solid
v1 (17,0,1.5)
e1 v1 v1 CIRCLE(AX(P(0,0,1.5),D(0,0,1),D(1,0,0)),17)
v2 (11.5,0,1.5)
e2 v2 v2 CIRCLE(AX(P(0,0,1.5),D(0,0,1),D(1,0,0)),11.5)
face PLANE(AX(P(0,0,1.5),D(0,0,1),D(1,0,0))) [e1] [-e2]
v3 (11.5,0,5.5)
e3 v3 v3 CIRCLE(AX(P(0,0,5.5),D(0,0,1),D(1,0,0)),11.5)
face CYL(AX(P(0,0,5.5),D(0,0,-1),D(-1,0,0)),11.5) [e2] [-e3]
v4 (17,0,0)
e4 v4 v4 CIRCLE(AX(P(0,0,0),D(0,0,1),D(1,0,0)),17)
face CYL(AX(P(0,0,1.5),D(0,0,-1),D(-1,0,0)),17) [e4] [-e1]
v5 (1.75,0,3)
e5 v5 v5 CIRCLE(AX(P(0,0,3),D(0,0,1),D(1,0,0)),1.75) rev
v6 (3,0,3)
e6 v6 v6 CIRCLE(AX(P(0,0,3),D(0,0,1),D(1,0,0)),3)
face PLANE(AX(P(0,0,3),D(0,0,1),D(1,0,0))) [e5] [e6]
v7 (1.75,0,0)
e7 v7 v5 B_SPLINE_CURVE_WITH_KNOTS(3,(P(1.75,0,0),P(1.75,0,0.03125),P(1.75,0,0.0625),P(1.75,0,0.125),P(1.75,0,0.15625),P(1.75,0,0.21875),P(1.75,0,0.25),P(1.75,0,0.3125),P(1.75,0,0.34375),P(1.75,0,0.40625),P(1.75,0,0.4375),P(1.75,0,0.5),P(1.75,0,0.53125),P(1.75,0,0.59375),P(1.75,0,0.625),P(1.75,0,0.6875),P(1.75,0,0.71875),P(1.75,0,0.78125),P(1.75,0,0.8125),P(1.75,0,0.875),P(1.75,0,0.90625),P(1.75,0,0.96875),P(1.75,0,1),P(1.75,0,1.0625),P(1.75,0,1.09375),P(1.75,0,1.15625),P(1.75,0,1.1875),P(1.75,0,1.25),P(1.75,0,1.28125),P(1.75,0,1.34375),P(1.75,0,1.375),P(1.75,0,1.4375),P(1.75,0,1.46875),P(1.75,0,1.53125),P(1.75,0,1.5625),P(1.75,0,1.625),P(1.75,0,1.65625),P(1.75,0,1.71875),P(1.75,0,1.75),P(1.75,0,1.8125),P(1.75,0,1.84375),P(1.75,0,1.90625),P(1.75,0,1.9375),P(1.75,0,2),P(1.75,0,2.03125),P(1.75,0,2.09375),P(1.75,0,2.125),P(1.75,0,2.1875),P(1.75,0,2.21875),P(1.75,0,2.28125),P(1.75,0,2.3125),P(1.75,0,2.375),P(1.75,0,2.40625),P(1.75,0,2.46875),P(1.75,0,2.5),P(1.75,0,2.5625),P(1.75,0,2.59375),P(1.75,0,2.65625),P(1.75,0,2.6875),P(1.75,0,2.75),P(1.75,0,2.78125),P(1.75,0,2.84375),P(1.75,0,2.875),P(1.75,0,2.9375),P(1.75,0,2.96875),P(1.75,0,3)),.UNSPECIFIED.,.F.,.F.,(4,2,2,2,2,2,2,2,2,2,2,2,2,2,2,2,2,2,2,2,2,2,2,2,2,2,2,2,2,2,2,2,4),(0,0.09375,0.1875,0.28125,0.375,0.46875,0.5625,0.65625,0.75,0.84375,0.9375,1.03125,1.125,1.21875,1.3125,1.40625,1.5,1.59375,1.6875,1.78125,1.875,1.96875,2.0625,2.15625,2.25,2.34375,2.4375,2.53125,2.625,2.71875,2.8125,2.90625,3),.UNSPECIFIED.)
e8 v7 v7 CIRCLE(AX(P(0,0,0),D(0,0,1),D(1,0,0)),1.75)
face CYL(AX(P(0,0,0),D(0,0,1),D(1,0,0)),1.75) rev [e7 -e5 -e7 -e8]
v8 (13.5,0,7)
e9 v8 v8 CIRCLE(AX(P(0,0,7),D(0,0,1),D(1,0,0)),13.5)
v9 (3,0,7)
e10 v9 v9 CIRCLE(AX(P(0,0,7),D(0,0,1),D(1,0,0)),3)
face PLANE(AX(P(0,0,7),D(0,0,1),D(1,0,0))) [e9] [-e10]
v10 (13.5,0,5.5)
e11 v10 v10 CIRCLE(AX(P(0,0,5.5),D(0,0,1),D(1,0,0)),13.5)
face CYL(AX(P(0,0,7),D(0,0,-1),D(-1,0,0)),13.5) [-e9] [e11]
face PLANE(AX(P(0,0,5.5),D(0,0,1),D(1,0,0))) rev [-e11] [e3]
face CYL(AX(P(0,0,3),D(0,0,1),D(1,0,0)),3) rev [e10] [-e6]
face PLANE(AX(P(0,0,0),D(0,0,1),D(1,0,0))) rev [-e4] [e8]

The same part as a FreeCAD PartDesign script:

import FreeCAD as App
import Part
import Sketcher

doc = App.newDocument("Part")
body = doc.addObject("PartDesign::Body", "Body")

# Sketch on XY plane
sketch1 = doc.addObject("Sketcher::SketchObject", "Sketch")
body.addObject(sketch1)
sketch1.AttachmentSupport = (doc.XY_Plane, [""])
sketch1.MapMode = "FlatFace"
sketch1.addGeometry(Part.Circle(App.Vector(0, 0, 0), App.Vector(0, 0, 1), 17), False)
sketch1.addConstraint(Sketcher.Constraint("Coincident", 0, 3, -1, 1))
sketch1.addConstraint(Sketcher.Constraint("Diameter", 0, 34.0))
pad1 = doc.addObject("PartDesign::Pad", "Pad")
body.addObject(pad1)
pad1.Profile = sketch1
pad1.Length = 1.5

# Sketch on XY plane
sketch2 = doc.addObject("Sketcher::SketchObject", "Sketch001")
body.addObject(sketch2)
sketch2.AttachmentSupport = (doc.XY_Plane, [""])
sketch2.MapMode = "FlatFace"
sketch2.AttachmentOffset = App.Placement(App.Vector(0, 0, 1.5), App.Rotation())
sketch2.addGeometry(Part.Circle(App.Vector(0, 0, 0), App.Vector(0, 0, 1), 12), False)
sketch2.addConstraint(Sketcher.Constraint("Coincident", 0, 3, -1, 1))
sketch2.addConstraint(Sketcher.Constraint("Diameter", 0, 23.0))
pad2 = doc.addObject("PartDesign::Pad", "Pad001")
body.addObject(pad2)
pad2.Profile = sketch2
pad2.Length = 4

# Sketch on XY plane
sketch3 = doc.addObject("Sketcher::SketchObject", "Sketch002")
body.addObject(sketch3)
sketch3.AttachmentSupport = (doc.XY_Plane, [""])
sketch3.MapMode = "FlatFace"
sketch3.AttachmentOffset = App.Placement(App.Vector(0, 0, 5.5), App.Rotation())
sketch3.addGeometry(Part.Circle(App.Vector(0, 0, 0), App.Vector(0, 0, 1), 14), False)
sketch3.addConstraint(Sketcher.Constraint("Coincident", 0, 3, -1, 1))
sketch3.addConstraint(Sketcher.Constraint("Diameter", 0, 27.0))
pad3 = doc.addObject("PartDesign::Pad", "Pad002")
body.addObject(pad3)
pad3.Profile = sketch3
pad3.Length = 1.5

# Sketch on XY plane
sketch4 = doc.addObject("Sketcher::SketchObject", "Sketch003")
body.addObject(sketch4)
sketch4.AttachmentSupport = (doc.XY_Plane, [""])
sketch4.MapMode = "FlatFace"
sketch4.AttachmentOffset = App.Placement(App.Vector(0, 0, 7), App.Rotation())
sketch4.addGeometry(Part.Circle(App.Vector(0, 0, 0), App.Vector(0, 0, 1), 1.8), False)
sketch4.addConstraint(Sketcher.Constraint("Coincident", 0, 3, -1, 1))
sketch4.addConstraint(Sketcher.Constraint("Diameter", 0, 3.5))
pocket1 = doc.addObject("PartDesign::Pocket", "Pocket")
body.addObject(pocket1)
pocket1.Profile = sketch4
pocket1.Type = "ThroughAll"

# Sketch on XY plane
sketch5 = doc.addObject("Sketcher::SketchObject", "Sketch004")
body.addObject(sketch5)
sketch5.AttachmentSupport = (doc.XY_Plane, [""])
sketch5.MapMode = "FlatFace"
sketch5.AttachmentOffset = App.Placement(App.Vector(0, 0, 7), App.Rotation())
sketch5.addGeometry(Part.Circle(App.Vector(0, 0, 0), App.Vector(0, 0, 1), 3), False)
sketch5.addConstraint(Sketcher.Constraint("Coincident", 0, 3, -1, 1))
sketch5.addConstraint(Sketcher.Constraint("Diameter", 0, 6.0))
pocket2 = doc.addObject("PartDesign::Pocket", "Pocket001")
body.addObject(pocket2)
pocket2.Profile = sketch5
pocket2.Length = 4

doc.recompute()
